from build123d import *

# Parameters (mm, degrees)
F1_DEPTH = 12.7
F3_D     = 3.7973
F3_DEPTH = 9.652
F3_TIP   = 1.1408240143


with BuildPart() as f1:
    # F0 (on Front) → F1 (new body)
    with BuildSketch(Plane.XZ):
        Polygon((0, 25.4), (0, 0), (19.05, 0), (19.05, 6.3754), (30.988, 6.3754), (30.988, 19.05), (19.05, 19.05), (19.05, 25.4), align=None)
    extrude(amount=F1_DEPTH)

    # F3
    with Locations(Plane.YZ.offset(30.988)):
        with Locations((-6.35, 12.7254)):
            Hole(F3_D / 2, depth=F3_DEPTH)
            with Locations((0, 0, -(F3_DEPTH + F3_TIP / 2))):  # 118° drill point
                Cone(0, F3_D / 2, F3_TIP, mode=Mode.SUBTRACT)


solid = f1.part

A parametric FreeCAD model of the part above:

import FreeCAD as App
import Part
import Sketcher

V = App.Vector
Q = App.Units.Quantity


def add_polygon(sketch, points):
    """Adds a closed chain of lines whose ends are joined by coincident constraints."""
    first, n = sketch.GeometryCount, len(points)
    for a, b in zip(points, points[1:] + points[:1]):
        sketch.addGeometry(Part.LineSegment(App.Vector(*a, 0), App.Vector(*b, 0)), False)
    for i in range(n):
        sketch.addConstraint(Sketcher.Constraint("Coincident", first + i, 2, first + (i + 1) % n, 1))

doc = App.newDocument("Part")
params = doc.addObject("Spreadsheet::Sheet", "Params")
for row, (alias, value) in enumerate([
    ("sketch1_height", "1 in"),
    ("sketch1_width", "0.75 in"),
    ("sketch1_width2", "0.47 in"),
    ("sketch1_height2", "0.25 in"),
    ("sketch1_height3", "0.251 in"),
    ("pad1_length", "0.5 in"),
    ("hole_diameter", "0.1495 in"),
    ("hole_depth", "0.38 in"),
], start=1):
    params.set(f"A{row}", alias)
    params.set(f"B{row}", "=" + value)
    params.setAlias(f"B{row}", alias)

body = doc.addObject("PartDesign::Body", "Body")

sketch1 = body.newObject("Sketcher::SketchObject", "Sketch")
sketch1.AttachmentSupport = (doc.getObject("XZ_Plane"), [""])
sketch1.MapMode = "FlatFace"
add_polygon(sketch1, [(0, 25), (0, 0), (19, 0), (19, 6), (31, 6), (31, 19), (19, 19), (19, 25)])
sketch1.addConstraint(Sketcher.Constraint("Vertical", 0))
sketch1.addConstraint(Sketcher.Constraint("Horizontal", 1))
sketch1.addConstraint(Sketcher.Constraint("Vertical", 2))
sketch1.addConstraint(Sketcher.Constraint("Horizontal", 3))
sketch1.addConstraint(Sketcher.Constraint("Vertical", 4))
sketch1.addConstraint(Sketcher.Constraint("Horizontal", 5))
sketch1.addConstraint(Sketcher.Constraint("Vertical", 6))
sketch1.addConstraint(Sketcher.Constraint("Horizontal", 7))
sketch1.addConstraint(Sketcher.Constraint("Coincident", 0, 2, -1, 1))
sketch1.addConstraint(Sketcher.Constraint("Vertical", 2, 2, 5, 2))
sketch1.addConstraint(Sketcher.Constraint("DistanceY", 0, 2, 0, 1, Q("1 in")))
sketch1.addConstraint(Sketcher.Constraint("DistanceX", 1, 1, 1, 2, Q("0.75 in")))
sketch1.addConstraint(Sketcher.Constraint("DistanceX", 3, 1, 3, 2, Q("0.47 in")))
sketch1.addConstraint(Sketcher.Constraint("DistanceY", 6, 1, 6, 2, Q("0.25 in")))
sketch1.addConstraint(Sketcher.Constraint("DistanceY", 2, 1, 2, 2, Q("0.251 in")))
sketch1.setExpression("Constraints[18]", "Params.sketch1_height")
sketch1.setExpression("Constraints[19]", "Params.sketch1_width")
sketch1.setExpression("Constraints[20]", "Params.sketch1_width2")
sketch1.setExpression("Constraints[21]", "Params.sketch1_height2")
sketch1.setExpression("Constraints[22]", "Params.sketch1_height3")
pad1 = body.newObject("PartDesign::Pad", "Pad")
pad1.Profile = sketch1
pad1.setExpression("Length", "Params.pad1_length")

sketch2 = body.newObject("Sketcher::SketchObject", "Sketch001")
sketch2.AttachmentSupport = (doc.getObject("YZ_Plane"), [""])
sketch2.MapMode = "FlatFace"
sketch2.AttachmentOffset = App.Placement(V(0, 0, 1.22 * 25.4), App.Rotation())
sketch2.addGeometry(Part.Circle(V(-6.3, 12.7, 0), V(0, 0, 1), 1.9), False)
sketch2.addConstraint(Sketcher.Constraint("Diameter", 0, Q("0.1495 in")))
sketch2.addConstraint(Sketcher.Constraint("DistanceX", 0, 3, -1, 1, Q("0.25 in")))
sketch2.addConstraint(Sketcher.Constraint("DistanceY", -1, 1, 0, 3, Q("0.501 in")))
doc.recompute()
hole = body.newObject("PartDesign::Hole", "Hole")
hole.Profile = sketch2
hole.ThreadType = "None"
hole.setExpression("Diameter", "Params.hole_diameter")
hole.DepthType = "Dimension"
hole.setExpression("Depth", "Params.hole_depth")
hole.DrillPoint = "Angled"
hole.DrillPointAngle = 118

doc.recompute()
